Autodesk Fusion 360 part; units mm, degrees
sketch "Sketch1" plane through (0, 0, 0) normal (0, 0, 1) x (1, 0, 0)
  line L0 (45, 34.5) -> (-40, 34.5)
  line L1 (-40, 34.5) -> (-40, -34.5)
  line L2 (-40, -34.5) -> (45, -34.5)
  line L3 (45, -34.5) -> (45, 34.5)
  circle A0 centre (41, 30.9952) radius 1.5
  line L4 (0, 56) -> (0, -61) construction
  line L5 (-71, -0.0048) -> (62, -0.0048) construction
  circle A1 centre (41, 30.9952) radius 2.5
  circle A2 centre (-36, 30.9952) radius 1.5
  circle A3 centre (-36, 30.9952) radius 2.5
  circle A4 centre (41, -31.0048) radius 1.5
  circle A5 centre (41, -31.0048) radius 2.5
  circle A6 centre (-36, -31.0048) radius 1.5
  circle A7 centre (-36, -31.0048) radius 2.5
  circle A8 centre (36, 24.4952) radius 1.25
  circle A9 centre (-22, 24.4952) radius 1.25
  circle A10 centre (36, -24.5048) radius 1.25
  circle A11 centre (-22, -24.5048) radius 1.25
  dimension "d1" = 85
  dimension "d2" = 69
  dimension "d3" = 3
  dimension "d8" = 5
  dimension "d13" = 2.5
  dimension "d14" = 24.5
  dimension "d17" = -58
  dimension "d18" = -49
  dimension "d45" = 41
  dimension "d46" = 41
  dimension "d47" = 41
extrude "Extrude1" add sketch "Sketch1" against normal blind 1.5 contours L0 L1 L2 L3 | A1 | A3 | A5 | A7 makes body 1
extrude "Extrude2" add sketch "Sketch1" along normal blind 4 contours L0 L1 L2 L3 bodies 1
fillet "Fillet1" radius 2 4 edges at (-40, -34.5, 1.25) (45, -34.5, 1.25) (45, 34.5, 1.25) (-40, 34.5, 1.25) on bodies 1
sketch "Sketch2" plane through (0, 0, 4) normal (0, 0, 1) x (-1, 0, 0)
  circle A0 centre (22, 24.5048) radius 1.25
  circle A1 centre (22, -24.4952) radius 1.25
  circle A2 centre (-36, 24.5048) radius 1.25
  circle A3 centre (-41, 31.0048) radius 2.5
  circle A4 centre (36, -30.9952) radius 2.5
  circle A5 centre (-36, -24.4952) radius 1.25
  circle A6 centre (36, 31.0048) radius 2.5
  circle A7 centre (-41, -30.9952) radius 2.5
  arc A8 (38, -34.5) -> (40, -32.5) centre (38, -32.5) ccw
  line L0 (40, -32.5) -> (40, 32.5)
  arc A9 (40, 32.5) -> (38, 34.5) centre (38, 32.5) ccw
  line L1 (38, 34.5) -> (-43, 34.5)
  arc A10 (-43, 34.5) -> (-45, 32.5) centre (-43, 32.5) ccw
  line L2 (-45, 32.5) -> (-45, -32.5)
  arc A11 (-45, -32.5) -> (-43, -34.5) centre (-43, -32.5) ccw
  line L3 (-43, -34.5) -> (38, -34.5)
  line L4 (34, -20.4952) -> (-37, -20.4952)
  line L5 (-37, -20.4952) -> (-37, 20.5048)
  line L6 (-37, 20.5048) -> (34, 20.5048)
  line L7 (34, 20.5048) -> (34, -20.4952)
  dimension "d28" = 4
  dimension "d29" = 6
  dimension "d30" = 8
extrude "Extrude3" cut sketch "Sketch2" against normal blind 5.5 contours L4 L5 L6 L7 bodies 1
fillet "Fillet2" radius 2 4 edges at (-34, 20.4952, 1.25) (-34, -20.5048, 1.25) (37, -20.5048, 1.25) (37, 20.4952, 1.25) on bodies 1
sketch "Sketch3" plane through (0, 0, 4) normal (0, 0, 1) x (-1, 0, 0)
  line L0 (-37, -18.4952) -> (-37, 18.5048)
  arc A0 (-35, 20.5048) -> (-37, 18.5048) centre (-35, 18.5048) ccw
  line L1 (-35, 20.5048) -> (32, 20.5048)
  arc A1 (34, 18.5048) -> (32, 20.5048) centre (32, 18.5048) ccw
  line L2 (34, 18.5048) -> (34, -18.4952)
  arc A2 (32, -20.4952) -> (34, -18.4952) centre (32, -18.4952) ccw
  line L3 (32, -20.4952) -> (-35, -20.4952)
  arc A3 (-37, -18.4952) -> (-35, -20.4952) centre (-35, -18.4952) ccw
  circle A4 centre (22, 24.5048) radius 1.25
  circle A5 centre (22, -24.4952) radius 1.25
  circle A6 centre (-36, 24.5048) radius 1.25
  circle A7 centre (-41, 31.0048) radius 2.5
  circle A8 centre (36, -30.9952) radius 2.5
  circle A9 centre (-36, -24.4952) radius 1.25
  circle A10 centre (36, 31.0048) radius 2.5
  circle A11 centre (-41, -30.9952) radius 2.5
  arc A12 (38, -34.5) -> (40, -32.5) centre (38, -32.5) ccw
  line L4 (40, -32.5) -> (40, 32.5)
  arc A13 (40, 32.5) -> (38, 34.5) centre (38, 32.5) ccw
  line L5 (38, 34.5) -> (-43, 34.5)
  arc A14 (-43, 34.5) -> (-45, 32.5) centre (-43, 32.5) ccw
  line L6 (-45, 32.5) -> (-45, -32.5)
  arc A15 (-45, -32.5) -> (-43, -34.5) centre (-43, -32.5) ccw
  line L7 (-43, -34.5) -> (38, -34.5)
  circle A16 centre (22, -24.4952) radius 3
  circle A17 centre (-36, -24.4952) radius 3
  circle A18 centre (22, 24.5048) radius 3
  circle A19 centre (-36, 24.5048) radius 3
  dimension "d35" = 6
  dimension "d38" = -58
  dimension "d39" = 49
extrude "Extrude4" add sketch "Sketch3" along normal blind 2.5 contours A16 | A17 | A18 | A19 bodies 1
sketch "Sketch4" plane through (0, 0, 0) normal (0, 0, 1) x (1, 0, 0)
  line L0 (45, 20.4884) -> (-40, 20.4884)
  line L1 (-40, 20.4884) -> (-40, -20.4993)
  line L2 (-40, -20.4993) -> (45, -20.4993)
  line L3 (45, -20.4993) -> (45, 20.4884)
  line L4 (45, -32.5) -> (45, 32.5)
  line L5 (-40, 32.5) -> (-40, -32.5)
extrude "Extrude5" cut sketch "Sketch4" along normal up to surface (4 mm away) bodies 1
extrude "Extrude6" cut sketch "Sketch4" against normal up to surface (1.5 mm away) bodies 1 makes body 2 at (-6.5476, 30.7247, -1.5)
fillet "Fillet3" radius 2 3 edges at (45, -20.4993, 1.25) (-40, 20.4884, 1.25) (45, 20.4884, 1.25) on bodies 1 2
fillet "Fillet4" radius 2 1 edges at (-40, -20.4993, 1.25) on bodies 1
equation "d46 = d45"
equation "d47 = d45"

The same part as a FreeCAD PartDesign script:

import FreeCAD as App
import Part
import Sketcher

V = App.Vector
Q = App.Units.Quantity


def edges_at(feature, points):
    """Names of the edges that pass closest to the given points."""
    edges = feature.Shape.Edges
    near = lambda p: min(range(len(edges)), key=lambda i: edges[i].distToShape(Part.Vertex(*p))[0])
    return sorted({f"Edge{near(p) + 1}" for p in points})


def add_polygon(sketch, points):
    """Adds a closed chain of lines whose ends are joined by coincident constraints."""
    first, n = sketch.GeometryCount, len(points)
    for a, b in zip(points, points[1:] + points[:1]):
        sketch.addGeometry(Part.LineSegment(App.Vector(*a, 0), App.Vector(*b, 0)), False)
    for i in range(n):
        sketch.addConstraint(Sketcher.Constraint("Coincident", first + i, 2, first + (i + 1) % n, 1))

doc = App.newDocument("Part")
params = doc.addObject("Spreadsheet::Sheet", "Params")
for row, (alias, value) in enumerate([
    ("sketch1_diameter", "3 mm"),
    ("sketch1_diameter2", "2.5 mm"),
    ("sketch1_width", "85 mm"),
    ("sketch1_height", "69 mm"),
    ("pad1_length", "1.5 mm"),
    ("sketch2_diameter", "5 mm"),
    ("sketch2_diameter2", "2.5 mm"),
    ("sketch2_width", "85 mm"),
    ("sketch2_height", "69 mm"),
    ("pad2_length", "4 mm"),
    ("fillet_radius", "2 mm"),
    ("sketch3_width", "71 mm"),
    ("sketch3_height", "41 mm"),
    ("pocket1_length", "5.5 mm"),
    ("fillet2_radius", "2 mm"),
    ("sketch4_diameter", "6 mm"),
    ("sketch4_diameter2", "2.5 mm"),
    ("pad3_length", "2.5 mm"),
    ("sketch5_width", "85 mm"),
    ("pocket2_length", "4 mm"),
    ("sketch6_width", "85 mm"),
    ("pocket3_length", "1.5 mm"),
    ("fillet3_radius", "2 mm"),
    ("fillet4_radius", "2 mm"),
], start=1):
    params.set(f"A{row}", alias)
    params.set(f"B{row}", "=" + value)
    params.setAlias(f"B{row}", alias)

body = doc.addObject("PartDesign::Body", "Body")
body.AllowCompound = True

sketch1 = doc.addObject("Sketcher::SketchObject", "Sketch")
body.addObject(sketch1)
sketch1.AttachmentSupport = (doc.XY_Plane, [""])
sketch1.MapMode = "FlatFace"
add_polygon(sketch1, [(45, -34.5), (45, 34.5), (-40, 34.5), (-40, -34.5)])
sketch1.addGeometry(Part.Circle(V(-22, -24.5, 0), V(0, 0, 1), 1.2), False)
sketch1.addGeometry(Part.Circle(V(36, -24.5, 0), V(0, 0, 1), 1.2), False)
sketch1.addGeometry(Part.Circle(V(-22, 24.5, 0), V(0, 0, 1), 1.2), False)
sketch1.addGeometry(Part.Circle(V(36, 24.5, 0), V(0, 0, 1), 1.2), False)
sketch1.addGeometry(Part.Circle(V(-36, -31, 0), V(0, 0, 1), 1.5), False)
sketch1.addGeometry(Part.Circle(V(41, -31, 0), V(0, 0, 1), 1.5), False)
sketch1.addGeometry(Part.Circle(V(-36, 31, 0), V(0, 0, 1), 1.5), False)
sketch1.addGeometry(Part.Circle(V(41, 31, 0), V(0, 0, 1), 1.5), False)
sketch1.addConstraint([
    Sketcher.Constraint("Vertical", 0),
    Sketcher.Constraint("Horizontal", 1),
    Sketcher.Constraint("Vertical", 2),
    Sketcher.Constraint("Horizontal", 3),
    Sketcher.Constraint("Equal", 4, 5),
    Sketcher.Constraint("Equal", 5, 6),
    Sketcher.Constraint("Equal", 6, 7),
    Sketcher.Constraint("Equal", 8, 9),
    Sketcher.Constraint("Equal", 9, 10),
    Sketcher.Constraint("Equal", 10, 11),
    Sketcher.Constraint("Horizontal", 4, 3, 5, 3),
    Sketcher.Constraint("Horizontal", 6, 3, 7, 3),
    Sketcher.Constraint("Horizontal", 8, 3, 9, 3),
    Sketcher.Constraint("Horizontal", 10, 3, 11, 3),
    Sketcher.Constraint("Vertical", 4, 3, 6, 3),
    Sketcher.Constraint("Vertical", 5, 3, 7, 3),
    Sketcher.Constraint("Vertical", 8, 3, 10, 3),
    Sketcher.Constraint("Vertical", 9, 3, 11, 3),
    Sketcher.Constraint("Diameter", 8, Q("3 mm")),
    Sketcher.Constraint("Diameter", 4, Q("2.5 mm")),
    Sketcher.Constraint("DistanceX", 1, 2, 1, 1, Q("85 mm")),
    Sketcher.Constraint("DistanceY", 0, 1, 0, 2, Q("69 mm")),
    Sketcher.Constraint("DistanceX", -1, 1, 9, 3, Q("41 mm")),
    Sketcher.Constraint("DistanceX", 4, 3, 5, 3, Q("58 mm")),
    Sketcher.Constraint("DistanceY", 4, 3, 6, 3, Q("49 mm")),
    Sketcher.Constraint("DistanceX", 5, 3, 9, 3, Q("5 mm")),
    Sketcher.Constraint("DistanceX", 8, 3, -1, 1, Q("36 mm")),
    Sketcher.Constraint("DistanceX", -1, 1, 0, 2, Q("45 mm")),
    Sketcher.Constraint("DistanceY", 8, 3, 10, 3, Q("62 mm")),
    Sketcher.Constraint("DistanceY", -1, 1, 0, 2, Q("34.5 mm")),
    Sketcher.Constraint("DistanceY", 8, 3, 4, 3, Q("6.5 mm")),
    Sketcher.Constraint("DistanceY", 4, 3, -1, 1, Q("24.5048 mm")),
])
sketch1.setExpression("Constraints[22]", "Params.sketch1_diameter")
sketch1.setExpression("Constraints[23]", "Params.sketch1_diameter2")
sketch1.setExpression("Constraints[24]", "Params.sketch1_width")
sketch1.setExpression("Constraints[25]", "Params.sketch1_height")
pad1 = doc.addObject("PartDesign::Pad", "Pad")
body.addObject(pad1)
pad1.Profile = sketch1
pad1.setExpression("Length", "Params.pad1_length")
pad1.Reversed = True

sketch2 = doc.addObject("Sketcher::SketchObject", "Sketch001")
body.addObject(sketch2)
sketch2.AttachmentSupport = (doc.XY_Plane, [""])
sketch2.MapMode = "FlatFace"
add_polygon(sketch2, [(45, -34.5), (45, 34.5), (-40, 34.5), (-40, -34.5)])
sketch2.addGeometry(Part.Circle(V(-36, -31, 0), V(0, 0, 1), 2.5), False)
sketch2.addGeometry(Part.Circle(V(-22, -24.5, 0), V(0, 0, 1), 1.2), False)
sketch2.addGeometry(Part.Circle(V(41, -31, 0), V(0, 0, 1), 2.5), False)
sketch2.addGeometry(Part.Circle(V(36, -24.5, 0), V(0, 0, 1), 1.2), False)
sketch2.addGeometry(Part.Circle(V(-22, 24.5, 0), V(0, 0, 1), 1.2), False)
sketch2.addGeometry(Part.Circle(V(-36, 31, 0), V(0, 0, 1), 2.5), False)
sketch2.addGeometry(Part.Circle(V(36, 24.5, 0), V(0, 0, 1), 1.2), False)
sketch2.addGeometry(Part.Circle(V(41, 31, 0), V(0, 0, 1), 2.5), False)
sketch2.addConstraint([
    Sketcher.Constraint("Vertical", 0),
    Sketcher.Constraint("Horizontal", 1),
    Sketcher.Constraint("Vertical", 2),
    Sketcher.Constraint("Horizontal", 3),
    Sketcher.Constraint("Equal", 4, 6),
    Sketcher.Constraint("Equal", 5, 7),
    Sketcher.Constraint("Equal", 7, 8),
    Sketcher.Constraint("Equal", 6, 9),
    Sketcher.Constraint("Equal", 8, 10),
    Sketcher.Constraint("Equal", 9, 11),
    Sketcher.Constraint("Horizontal", 4, 3, 6, 3),
    Sketcher.Constraint("Horizontal", 5, 3, 7, 3),
    Sketcher.Constraint("Horizontal", 8, 3, 10, 3),
    Sketcher.Constraint("Horizontal", 9, 3, 11, 3),
    Sketcher.Constraint("Vertical", 5, 3, 8, 3),
    Sketcher.Constraint("Vertical", 4, 3, 9, 3),
    Sketcher.Constraint("Vertical", 7, 3, 10, 3),
    Sketcher.Constraint("Vertical", 6, 3, 11, 3),
    Sketcher.Constraint("Diameter", 4, Q("5 mm")),
    Sketcher.Constraint("Diameter", 5, Q("2.5 mm")),
    Sketcher.Constraint("DistanceX", 1, 2, 1, 1, Q("85 mm")),
    Sketcher.Constraint("DistanceY", 0, 1, 0, 2, Q("69 mm")),
    Sketcher.Constraint("DistanceX", -1, 1, 6, 3, Q("41 mm")),
    Sketcher.Constraint("DistanceX", 7, 3, 6, 3, Q("5 mm")),
    Sketcher.Constraint("DistanceX", 5, 3, 7, 3, Q("58 mm")),
    Sketcher.Constraint("DistanceY", 5, 3, 8, 3, Q("49 mm")),
    Sketcher.Constraint("DistanceX", 4, 3, -1, 1, Q("36 mm")),
    Sketcher.Constraint("DistanceX", -1, 1, 0, 2, Q("45 mm")),
    Sketcher.Constraint("DistanceY", 4, 3, 9, 3, Q("62 mm")),
    Sketcher.Constraint("DistanceY", -1, 1, 0, 2, Q("34.5 mm")),
    Sketcher.Constraint("DistanceY", 4, 3, 5, 3, Q("6.5 mm")),
    Sketcher.Constraint("DistanceY", 4, 3, -1, 1, Q("31.0048 mm")),
])
sketch2.setExpression("Constraints[22]", "Params.sketch2_diameter")
sketch2.setExpression("Constraints[23]", "Params.sketch2_diameter2")
sketch2.setExpression("Constraints[24]", "Params.sketch2_width")
sketch2.setExpression("Constraints[25]", "Params.sketch2_height")
pad2 = doc.addObject("PartDesign::Pad", "Pad001")
body.addObject(pad2)
pad2.Profile = sketch2
pad2.setExpression("Length", "Params.pad2_length")
doc.recompute()

fillet = doc.addObject("PartDesign::Fillet", "Fillet")
body.addObject(fillet)
fillet.Base = (pad2, edges_at(pad2, [
    (-40, -34.5, 1.25),
    (45, -34.5, 1.25),
    (45, 34.5, 1.25),
    (-40, 34.5, 1.25),
]))
fillet.setExpression("Radius", "Params.fillet_radius")

sketch3 = doc.addObject("Sketcher::SketchObject", "Sketch002")
body.addObject(sketch3)
sketch3.AttachmentSupport = (doc.XY_Plane, [""])
sketch3.MapMode = "FlatFace"
sketch3.AttachmentOffset = App.Placement(V(0, 0, 4), App.Rotation())
add_polygon(sketch3, [(37, 20), (-34, 20), (-34, -21), (37, -21)])
sketch3.addConstraint([
    Sketcher.Constraint("Horizontal", 0),
    Sketcher.Constraint("Vertical", 1),
    Sketcher.Constraint("Horizontal", 2),
    Sketcher.Constraint("Vertical", 3),
    Sketcher.Constraint("DistanceX", 0, 2, 0, 1, Q("71 mm")),
    Sketcher.Constraint("DistanceY", 1, 2, 1, 1, Q("41 mm")),
    Sketcher.Constraint("DistanceX", 0, 2, -1, 1, Q("34 mm")),
    Sketcher.Constraint("DistanceY", -1, 1, 0, 2, Q("20.4952 mm")),
])
sketch3.setExpression("Constraints[8]", "Params.sketch3_width")
sketch3.setExpression("Constraints[9]", "Params.sketch3_height")
pocket1 = doc.addObject("PartDesign::Pocket", "Pocket")
body.addObject(pocket1)
pocket1.Profile = sketch3
pocket1.setExpression("Length", "Params.pocket1_length")
doc.recompute()

fillet2 = doc.addObject("PartDesign::Fillet", "Fillet001")
body.addObject(fillet2)
fillet2.Base = (pocket1, edges_at(pocket1, [
    (-34, 20.495, 1.25),
    (-34, -20.505, 1.25),
    (37, -20.505, 1.25),
    (37, 20.495, 1.25),
]))
fillet2.setExpression("Radius", "Params.fillet2_radius")

sketch4 = doc.addObject("Sketcher::SketchObject", "Sketch003")
body.addObject(sketch4)
sketch4.AttachmentSupport = (doc.XY_Plane, [""])
sketch4.MapMode = "FlatFace"
sketch4.AttachmentOffset = App.Placement(V(0, 0, 4), App.Rotation())
sketch4.addGeometry([
    Part.Circle(V(-22, 24.5, 0), V(0, 0, 1), 3),
    Part.Circle(V(-22, 24.5, 0), V(0, 0, 1), 1.2),
    Part.Circle(V(36, 24.5, 0), V(0, 0, 1), 3),
    Part.Circle(V(36, 24.5, 0), V(0, 0, 1), 1.2),
    Part.Circle(V(-22, -24.5, 0), V(0, 0, 1), 3),
    Part.Circle(V(-22, -24.5, 0), V(0, 0, 1), 1.2),
    Part.Circle(V(36, -24.5, 0), V(0, 0, 1), 3),
    Part.Circle(V(36, -24.5, 0), V(0, 0, 1), 1.2),
], False)
sketch4.addConstraint([
    Sketcher.Constraint("Coincident", 1, 3, 0, 3),
    Sketcher.Constraint("Coincident", 3, 3, 2, 3),
    Sketcher.Constraint("Coincident", 5, 3, 4, 3),
    Sketcher.Constraint("Coincident", 7, 3, 6, 3),
    Sketcher.Constraint("Equal", 0, 2),
    Sketcher.Constraint("Equal", 1, 3),
    Sketcher.Constraint("Equal", 2, 4),
    Sketcher.Constraint("Equal", 3, 5),
    Sketcher.Constraint("Equal", 4, 6),
    Sketcher.Constraint("Equal", 5, 7),
    Sketcher.Constraint("Horizontal", 1, 3, 2, 3),
    Sketcher.Constraint("Horizontal", 5, 3, 6, 3),
    Sketcher.Constraint("Vertical", 1, 3, 4, 3),
    Sketcher.Constraint("Vertical", 3, 3, 6, 3),
    Sketcher.Constraint("Diameter", 0, Q("6 mm")),
    Sketcher.Constraint("DistanceX", 0, 3, 2, 3, Q("58 mm")),
    Sketcher.Constraint("DistanceY", 4, 3, 0, 3, Q("49 mm")),
    Sketcher.Constraint("Diameter", 1, Q("2.5 mm")),
    Sketcher.Constraint("DistanceX", 0, 3, -1, 1, Q("22 mm")),
    Sketcher.Constraint("DistanceY", -1, 1, 0, 3, Q("24.4952 mm")),
])
sketch4.setExpression("Constraints[14]", "Params.sketch4_diameter")
sketch4.setExpression("Constraints[17]", "Params.sketch4_diameter2")
pad3 = doc.addObject("PartDesign::Pad", "Pad002")
body.addObject(pad3)
pad3.Profile = sketch4
pad3.setExpression("Length", "Params.pad3_length")

sketch5 = doc.addObject("Sketcher::SketchObject", "Sketch004")
body.addObject(sketch5)
sketch5.AttachmentSupport = (doc.XY_Plane, [""])
sketch5.MapMode = "FlatFace"
add_polygon(sketch5, [(45, -20), (45, 20), (-40, 20), (-40, -20)])
sketch5.addConstraint([
    Sketcher.Constraint("Vertical", 0),
    Sketcher.Constraint("Horizontal", 1),
    Sketcher.Constraint("Vertical", 2),
    Sketcher.Constraint("Horizontal", 3),
    Sketcher.Constraint("DistanceX", 1, 2, 1, 1, Q("85 mm")),
    Sketcher.Constraint("DistanceX", -1, 1, 0, 2, Q("45 mm")),
    Sketcher.Constraint("DistanceY", 0, 1, 0, 2, Q("40.9877 mm")),
    Sketcher.Constraint("DistanceY", -1, 1, 0, 2, Q("20.4884 mm")),
])
sketch5.setExpression("Constraints[8]", "Params.sketch5_width")
pocket2 = doc.addObject("PartDesign::Pocket", "Pocket001")
body.addObject(pocket2)
pocket2.Profile = sketch5
pocket2.setExpression("Length", "Params.pocket2_length")
pocket2.Reversed = True

sketch6 = doc.addObject("Sketcher::SketchObject", "Sketch005")
body.addObject(sketch6)
sketch6.AttachmentSupport = (doc.XY_Plane, [""])
sketch6.MapMode = "FlatFace"
add_polygon(sketch6, [(45, -20), (45, 20), (-40, 20), (-40, -20)])
sketch6.addConstraint([
    Sketcher.Constraint("Vertical", 0),
    Sketcher.Constraint("Horizontal", 1),
    Sketcher.Constraint("Vertical", 2),
    Sketcher.Constraint("Horizontal", 3),
    Sketcher.Constraint("DistanceX", 1, 2, 1, 1, Q("85 mm")),
    Sketcher.Constraint("DistanceX", -1, 1, 0, 2, Q("45 mm")),
    Sketcher.Constraint("DistanceY", 0, 1, 0, 2, Q("40.9877 mm")),
    Sketcher.Constraint("DistanceY", -1, 1, 0, 2, Q("20.4884 mm")),
])
sketch6.setExpression("Constraints[8]", "Params.sketch6_width")
pocket3 = doc.addObject("PartDesign::Pocket", "Pocket002")
body.addObject(pocket3)
pocket3.Profile = sketch6
pocket3.setExpression("Length", "Params.pocket3_length")
doc.recompute()

fillet3 = doc.addObject("PartDesign::Fillet", "Fillet002")
body.addObject(fillet3)
fillet3.Base = (pocket3, edges_at(pocket3, [(45, -20.499, 1.25), (-40, 20.488, 1.25), (45, 20.488, 1.25)]))
fillet3.setExpression("Radius", "Params.fillet3_radius")
doc.recompute()

fillet4 = doc.addObject("PartDesign::Fillet", "Fillet003")
body.addObject(fillet4)
fillet4.Base = (fillet3, edges_at(fillet3, [(-40, -20.499, 1.25)]))
fillet4.setExpression("Radius", "Params.fillet4_radius")

doc.recompute()
